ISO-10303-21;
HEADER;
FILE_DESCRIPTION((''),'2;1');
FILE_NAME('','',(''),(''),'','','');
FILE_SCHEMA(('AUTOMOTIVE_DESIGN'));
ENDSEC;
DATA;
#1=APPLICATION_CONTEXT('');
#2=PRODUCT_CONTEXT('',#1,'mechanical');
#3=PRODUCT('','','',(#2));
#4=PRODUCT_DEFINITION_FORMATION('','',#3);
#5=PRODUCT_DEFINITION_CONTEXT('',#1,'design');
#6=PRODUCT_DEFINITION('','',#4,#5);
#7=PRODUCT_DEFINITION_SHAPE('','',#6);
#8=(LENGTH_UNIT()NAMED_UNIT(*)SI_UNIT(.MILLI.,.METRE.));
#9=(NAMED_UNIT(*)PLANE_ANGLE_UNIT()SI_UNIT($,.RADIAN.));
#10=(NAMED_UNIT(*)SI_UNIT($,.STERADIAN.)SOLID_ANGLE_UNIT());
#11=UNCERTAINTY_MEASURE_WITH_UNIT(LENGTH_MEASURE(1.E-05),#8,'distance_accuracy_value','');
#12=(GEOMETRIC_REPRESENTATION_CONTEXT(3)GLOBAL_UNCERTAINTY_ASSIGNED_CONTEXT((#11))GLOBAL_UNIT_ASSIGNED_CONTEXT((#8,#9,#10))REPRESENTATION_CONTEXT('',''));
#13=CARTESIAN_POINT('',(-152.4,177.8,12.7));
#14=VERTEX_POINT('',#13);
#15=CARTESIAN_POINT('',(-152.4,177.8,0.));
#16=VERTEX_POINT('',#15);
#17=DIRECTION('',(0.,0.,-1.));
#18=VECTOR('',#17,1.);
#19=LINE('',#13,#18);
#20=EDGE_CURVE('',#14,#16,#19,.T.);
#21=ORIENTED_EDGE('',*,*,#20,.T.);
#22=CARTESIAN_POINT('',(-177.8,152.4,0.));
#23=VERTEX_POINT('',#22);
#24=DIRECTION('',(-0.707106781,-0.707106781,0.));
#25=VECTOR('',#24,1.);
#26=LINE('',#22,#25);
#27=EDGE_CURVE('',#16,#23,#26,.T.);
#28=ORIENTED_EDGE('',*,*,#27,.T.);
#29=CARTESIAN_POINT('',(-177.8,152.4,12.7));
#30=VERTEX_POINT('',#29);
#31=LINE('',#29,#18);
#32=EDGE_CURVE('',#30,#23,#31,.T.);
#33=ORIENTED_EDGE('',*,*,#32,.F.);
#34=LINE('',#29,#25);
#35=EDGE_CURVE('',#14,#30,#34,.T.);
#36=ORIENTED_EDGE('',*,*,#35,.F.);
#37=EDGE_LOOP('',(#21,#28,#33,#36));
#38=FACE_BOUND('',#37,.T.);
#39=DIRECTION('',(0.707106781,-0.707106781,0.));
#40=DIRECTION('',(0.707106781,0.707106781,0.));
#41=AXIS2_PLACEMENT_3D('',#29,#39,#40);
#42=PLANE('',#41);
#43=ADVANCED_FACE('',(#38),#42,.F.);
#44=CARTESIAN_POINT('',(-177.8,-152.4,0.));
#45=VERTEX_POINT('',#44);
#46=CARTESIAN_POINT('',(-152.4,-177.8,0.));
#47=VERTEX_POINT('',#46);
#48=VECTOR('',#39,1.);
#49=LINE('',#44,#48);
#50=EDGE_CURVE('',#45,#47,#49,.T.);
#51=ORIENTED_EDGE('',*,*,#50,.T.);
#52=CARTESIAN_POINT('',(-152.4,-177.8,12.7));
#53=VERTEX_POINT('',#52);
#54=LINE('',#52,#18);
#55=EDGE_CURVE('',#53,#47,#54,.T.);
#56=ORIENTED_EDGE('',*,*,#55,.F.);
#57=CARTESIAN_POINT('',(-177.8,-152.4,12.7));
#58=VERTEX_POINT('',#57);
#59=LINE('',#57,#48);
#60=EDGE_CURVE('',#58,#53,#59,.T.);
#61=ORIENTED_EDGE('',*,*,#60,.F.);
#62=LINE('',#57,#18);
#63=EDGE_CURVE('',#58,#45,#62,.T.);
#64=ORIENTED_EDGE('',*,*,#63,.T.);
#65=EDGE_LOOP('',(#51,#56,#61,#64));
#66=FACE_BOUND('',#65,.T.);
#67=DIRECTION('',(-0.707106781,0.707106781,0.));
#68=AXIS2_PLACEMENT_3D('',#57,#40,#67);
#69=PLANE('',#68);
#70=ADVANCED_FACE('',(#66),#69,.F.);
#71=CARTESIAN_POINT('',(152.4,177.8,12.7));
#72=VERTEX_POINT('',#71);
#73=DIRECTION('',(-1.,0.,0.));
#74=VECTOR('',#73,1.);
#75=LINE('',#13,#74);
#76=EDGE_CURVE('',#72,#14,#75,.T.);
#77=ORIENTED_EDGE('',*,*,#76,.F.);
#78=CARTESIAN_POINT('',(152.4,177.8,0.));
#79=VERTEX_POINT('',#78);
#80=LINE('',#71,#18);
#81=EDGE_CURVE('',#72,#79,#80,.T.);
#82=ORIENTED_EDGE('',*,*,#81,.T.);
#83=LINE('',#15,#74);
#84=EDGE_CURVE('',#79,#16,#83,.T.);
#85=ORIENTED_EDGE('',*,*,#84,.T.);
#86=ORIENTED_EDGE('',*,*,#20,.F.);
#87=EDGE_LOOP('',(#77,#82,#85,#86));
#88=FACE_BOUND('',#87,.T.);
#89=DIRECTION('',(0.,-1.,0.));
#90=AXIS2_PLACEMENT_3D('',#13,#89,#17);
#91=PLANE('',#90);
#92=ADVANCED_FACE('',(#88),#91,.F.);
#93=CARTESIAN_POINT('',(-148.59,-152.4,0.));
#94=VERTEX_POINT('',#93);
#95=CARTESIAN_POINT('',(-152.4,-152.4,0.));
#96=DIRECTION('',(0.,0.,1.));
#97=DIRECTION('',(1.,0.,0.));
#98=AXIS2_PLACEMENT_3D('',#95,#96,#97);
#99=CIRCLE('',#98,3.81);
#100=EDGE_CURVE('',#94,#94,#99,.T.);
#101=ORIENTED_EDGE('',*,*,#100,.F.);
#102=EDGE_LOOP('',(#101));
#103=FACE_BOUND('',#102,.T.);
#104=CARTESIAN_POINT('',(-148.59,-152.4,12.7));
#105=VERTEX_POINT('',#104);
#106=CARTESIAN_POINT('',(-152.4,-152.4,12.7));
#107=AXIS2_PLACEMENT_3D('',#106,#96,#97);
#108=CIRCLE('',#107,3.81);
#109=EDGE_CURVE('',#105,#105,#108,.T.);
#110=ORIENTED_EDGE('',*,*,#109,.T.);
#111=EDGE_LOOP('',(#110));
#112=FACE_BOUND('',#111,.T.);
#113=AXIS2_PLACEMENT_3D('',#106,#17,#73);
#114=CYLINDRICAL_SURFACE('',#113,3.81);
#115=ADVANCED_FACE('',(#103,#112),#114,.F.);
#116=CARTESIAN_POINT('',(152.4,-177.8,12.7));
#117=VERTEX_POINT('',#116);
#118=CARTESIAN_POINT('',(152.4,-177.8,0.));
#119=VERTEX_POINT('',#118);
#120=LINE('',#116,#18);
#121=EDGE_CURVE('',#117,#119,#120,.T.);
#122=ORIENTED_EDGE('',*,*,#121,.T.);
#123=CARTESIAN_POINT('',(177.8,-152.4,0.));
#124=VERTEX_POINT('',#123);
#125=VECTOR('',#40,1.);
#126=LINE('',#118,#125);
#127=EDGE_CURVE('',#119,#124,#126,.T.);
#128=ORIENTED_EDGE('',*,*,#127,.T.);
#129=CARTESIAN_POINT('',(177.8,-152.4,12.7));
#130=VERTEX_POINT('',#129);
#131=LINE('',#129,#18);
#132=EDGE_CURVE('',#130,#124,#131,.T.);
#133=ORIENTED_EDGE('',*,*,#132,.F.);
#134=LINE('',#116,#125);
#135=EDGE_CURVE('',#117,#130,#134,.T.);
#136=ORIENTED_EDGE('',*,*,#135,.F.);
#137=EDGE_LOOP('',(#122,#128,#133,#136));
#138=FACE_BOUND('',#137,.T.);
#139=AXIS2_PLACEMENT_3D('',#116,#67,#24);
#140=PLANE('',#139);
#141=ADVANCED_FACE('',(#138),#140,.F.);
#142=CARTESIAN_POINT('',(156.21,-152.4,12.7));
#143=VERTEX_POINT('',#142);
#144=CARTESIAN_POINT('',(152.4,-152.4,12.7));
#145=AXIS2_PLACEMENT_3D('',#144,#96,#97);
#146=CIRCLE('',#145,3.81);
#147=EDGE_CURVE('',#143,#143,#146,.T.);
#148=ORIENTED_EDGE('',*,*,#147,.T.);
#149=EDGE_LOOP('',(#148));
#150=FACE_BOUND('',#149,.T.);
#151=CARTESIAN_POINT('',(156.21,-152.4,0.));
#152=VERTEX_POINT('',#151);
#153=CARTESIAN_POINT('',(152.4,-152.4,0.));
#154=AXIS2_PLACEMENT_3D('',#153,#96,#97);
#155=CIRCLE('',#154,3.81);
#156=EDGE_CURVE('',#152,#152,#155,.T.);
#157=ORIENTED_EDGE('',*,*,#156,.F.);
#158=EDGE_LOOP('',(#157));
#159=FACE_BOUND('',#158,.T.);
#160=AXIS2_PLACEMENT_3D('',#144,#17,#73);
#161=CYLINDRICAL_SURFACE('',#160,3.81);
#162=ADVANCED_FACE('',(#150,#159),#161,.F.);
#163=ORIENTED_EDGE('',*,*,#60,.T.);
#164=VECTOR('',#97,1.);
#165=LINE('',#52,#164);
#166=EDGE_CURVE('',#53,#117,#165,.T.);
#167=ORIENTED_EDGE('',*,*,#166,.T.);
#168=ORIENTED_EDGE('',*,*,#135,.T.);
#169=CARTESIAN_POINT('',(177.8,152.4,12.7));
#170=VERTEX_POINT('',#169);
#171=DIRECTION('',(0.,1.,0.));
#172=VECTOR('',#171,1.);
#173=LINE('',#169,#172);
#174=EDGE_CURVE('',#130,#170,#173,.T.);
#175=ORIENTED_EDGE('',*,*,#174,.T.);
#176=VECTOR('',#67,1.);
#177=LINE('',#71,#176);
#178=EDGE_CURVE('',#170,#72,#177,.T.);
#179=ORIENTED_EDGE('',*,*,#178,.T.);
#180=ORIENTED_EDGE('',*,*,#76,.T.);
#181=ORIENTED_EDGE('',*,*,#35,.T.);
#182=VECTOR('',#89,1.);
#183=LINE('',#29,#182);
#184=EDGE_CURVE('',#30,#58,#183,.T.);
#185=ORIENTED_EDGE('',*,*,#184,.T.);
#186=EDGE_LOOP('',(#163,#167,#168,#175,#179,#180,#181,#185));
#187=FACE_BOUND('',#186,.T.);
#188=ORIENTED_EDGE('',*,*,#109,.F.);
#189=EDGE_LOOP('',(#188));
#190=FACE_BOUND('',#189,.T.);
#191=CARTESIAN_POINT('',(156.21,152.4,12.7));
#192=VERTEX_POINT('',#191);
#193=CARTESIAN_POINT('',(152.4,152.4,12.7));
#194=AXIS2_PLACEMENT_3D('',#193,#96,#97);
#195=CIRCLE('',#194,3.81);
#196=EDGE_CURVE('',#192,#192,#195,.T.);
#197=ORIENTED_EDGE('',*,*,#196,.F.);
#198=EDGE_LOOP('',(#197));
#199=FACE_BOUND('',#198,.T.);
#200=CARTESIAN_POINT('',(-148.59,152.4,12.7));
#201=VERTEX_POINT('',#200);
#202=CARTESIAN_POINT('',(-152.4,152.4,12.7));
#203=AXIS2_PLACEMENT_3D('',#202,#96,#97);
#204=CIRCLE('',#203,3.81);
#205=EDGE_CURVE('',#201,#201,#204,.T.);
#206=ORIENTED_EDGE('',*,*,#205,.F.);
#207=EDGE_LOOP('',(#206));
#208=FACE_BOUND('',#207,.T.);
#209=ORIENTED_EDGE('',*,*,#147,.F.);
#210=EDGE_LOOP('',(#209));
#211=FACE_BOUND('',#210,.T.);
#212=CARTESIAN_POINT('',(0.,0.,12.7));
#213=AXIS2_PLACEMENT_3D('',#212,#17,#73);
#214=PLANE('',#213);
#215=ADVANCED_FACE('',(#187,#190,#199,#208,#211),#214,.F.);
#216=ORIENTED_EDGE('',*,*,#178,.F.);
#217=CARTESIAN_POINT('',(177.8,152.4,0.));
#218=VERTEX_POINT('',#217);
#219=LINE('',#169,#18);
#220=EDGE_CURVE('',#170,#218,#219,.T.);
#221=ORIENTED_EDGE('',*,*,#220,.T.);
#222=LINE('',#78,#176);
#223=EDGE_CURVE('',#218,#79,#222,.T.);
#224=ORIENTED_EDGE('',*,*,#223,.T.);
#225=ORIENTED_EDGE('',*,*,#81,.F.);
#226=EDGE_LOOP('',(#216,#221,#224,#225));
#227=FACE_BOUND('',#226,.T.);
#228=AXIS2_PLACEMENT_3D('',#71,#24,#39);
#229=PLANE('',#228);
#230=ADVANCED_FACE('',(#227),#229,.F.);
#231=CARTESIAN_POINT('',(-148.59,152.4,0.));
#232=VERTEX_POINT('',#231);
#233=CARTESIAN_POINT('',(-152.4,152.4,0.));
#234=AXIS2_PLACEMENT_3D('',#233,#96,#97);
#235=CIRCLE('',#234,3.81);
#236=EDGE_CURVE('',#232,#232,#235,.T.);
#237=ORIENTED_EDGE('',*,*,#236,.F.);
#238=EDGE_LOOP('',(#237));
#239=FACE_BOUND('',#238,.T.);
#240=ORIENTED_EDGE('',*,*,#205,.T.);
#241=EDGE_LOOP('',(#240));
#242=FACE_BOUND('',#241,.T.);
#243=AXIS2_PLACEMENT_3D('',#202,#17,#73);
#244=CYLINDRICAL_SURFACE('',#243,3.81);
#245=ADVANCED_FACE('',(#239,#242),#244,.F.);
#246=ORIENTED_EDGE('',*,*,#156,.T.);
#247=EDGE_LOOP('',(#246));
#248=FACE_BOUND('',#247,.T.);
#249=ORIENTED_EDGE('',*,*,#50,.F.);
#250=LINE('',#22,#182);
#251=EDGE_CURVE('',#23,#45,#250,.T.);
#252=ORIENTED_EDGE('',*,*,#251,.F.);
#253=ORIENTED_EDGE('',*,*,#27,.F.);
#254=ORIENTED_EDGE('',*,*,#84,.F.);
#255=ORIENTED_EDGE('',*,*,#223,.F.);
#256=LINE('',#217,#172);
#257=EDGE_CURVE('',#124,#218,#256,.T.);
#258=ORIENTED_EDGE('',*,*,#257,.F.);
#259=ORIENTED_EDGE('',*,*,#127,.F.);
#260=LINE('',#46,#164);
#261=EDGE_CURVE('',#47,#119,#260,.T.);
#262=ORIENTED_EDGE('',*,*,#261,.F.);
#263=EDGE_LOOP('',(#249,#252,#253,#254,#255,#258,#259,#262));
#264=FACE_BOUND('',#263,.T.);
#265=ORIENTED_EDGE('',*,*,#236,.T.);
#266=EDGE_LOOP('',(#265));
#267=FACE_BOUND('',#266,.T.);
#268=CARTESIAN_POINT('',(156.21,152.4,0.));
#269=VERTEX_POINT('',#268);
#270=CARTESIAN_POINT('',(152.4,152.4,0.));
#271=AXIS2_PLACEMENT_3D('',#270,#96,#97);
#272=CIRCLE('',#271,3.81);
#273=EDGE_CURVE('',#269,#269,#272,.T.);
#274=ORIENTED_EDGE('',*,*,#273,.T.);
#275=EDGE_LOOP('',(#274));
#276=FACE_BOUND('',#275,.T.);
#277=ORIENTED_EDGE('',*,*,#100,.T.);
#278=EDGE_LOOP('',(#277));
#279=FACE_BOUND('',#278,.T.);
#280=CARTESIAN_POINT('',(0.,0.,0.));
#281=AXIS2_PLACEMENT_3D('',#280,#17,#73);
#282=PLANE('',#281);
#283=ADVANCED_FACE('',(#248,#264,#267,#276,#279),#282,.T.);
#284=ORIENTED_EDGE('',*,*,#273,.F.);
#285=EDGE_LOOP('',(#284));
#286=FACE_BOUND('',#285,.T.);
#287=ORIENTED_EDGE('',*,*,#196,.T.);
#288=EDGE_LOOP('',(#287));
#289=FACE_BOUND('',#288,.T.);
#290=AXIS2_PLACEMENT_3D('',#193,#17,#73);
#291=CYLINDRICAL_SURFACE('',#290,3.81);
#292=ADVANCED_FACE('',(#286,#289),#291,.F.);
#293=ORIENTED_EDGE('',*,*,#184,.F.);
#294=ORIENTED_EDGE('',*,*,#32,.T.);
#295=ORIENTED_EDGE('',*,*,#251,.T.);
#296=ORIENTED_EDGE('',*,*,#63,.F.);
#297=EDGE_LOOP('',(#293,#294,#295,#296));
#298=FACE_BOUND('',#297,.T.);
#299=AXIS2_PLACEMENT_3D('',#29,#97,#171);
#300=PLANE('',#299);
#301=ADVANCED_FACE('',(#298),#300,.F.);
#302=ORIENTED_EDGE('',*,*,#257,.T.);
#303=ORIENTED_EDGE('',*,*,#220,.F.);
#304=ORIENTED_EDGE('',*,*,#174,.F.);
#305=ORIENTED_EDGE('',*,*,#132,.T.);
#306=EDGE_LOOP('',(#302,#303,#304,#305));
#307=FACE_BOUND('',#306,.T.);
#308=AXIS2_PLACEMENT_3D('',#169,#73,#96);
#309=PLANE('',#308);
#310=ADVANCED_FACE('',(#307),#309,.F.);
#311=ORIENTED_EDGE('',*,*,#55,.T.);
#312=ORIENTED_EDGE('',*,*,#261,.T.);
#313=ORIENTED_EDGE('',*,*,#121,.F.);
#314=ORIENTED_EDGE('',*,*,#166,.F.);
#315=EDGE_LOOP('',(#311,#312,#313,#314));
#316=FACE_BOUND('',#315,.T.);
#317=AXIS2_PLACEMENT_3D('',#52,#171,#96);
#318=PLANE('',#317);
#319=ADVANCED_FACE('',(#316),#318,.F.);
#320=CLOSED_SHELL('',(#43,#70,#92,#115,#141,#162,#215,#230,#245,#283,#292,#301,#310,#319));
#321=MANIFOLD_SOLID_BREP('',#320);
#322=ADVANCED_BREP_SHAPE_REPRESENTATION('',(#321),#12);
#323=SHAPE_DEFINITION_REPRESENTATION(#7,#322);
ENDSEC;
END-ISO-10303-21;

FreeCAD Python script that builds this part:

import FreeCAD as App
import Part
import Sketcher
Q = App.Units.Quantity

doc = App.newDocument("Part")
body = doc.addObject("PartDesign::Body", "Body")

# Sketch on XY plane
sketch1 = doc.addObject("Sketcher::SketchObject", "Sketch")
body.addObject(sketch1)
sketch1.AttachmentSupport = (doc.XY_Plane, [""])
sketch1.MapMode = "FlatFace"
sketch1.addGeometry([
    Part.LineSegment(App.Vector(-152.4, 177.8, 0), App.Vector(-177.8, 152.4, 0)),  # 0
    Part.LineSegment(App.Vector(-177.8, 152.4, 0), App.Vector(-177.8, -152.4, 0)),  # 1
    Part.LineSegment(App.Vector(-177.8, -152.4, 0), App.Vector(-152.4, -177.8, 0)),  # 2
    Part.LineSegment(App.Vector(-152.4, -177.8, 0), App.Vector(152.4, -177.8, 0)),  # 3
    Part.LineSegment(App.Vector(152.4, -177.8, 0), App.Vector(177.8, -152.4, 0)),  # 4
    Part.LineSegment(App.Vector(177.8, -152.4, 0), App.Vector(177.8, 152.4, 0)),  # 5
    Part.LineSegment(App.Vector(177.8, 152.4, 0), App.Vector(152.4, 177.8, 0)),  # 6
    Part.LineSegment(App.Vector(152.4, 177.8, 0), App.Vector(-152.4, 177.8, 0)),  # 7
    Part.Circle(App.Vector(152.4, -152.4, 0), App.Vector(0, 0, 1), 3.8),  # 8
    Part.Circle(App.Vector(-152.4, -152.4, 0), App.Vector(0, 0, 1), 3.8),  # 9
    Part.Circle(App.Vector(152.4, 152.4, 0), App.Vector(0, 0, 1), 3.8),  # 10
    Part.Circle(App.Vector(-152.4, 152.4, 0), App.Vector(0, 0, 1), 3.8),  # 11
], False)
sketch1.addConstraint([
    Sketcher.Constraint("Coincident", 0, 2, 1, 1),
    Sketcher.Constraint("Coincident", 1, 2, 2, 1),
    Sketcher.Constraint("Coincident", 2, 2, 3, 1),
    Sketcher.Constraint("Coincident", 3, 2, 4, 1),
    Sketcher.Constraint("Coincident", 4, 2, 5, 1),
    Sketcher.Constraint("Coincident", 5, 2, 6, 1),
    Sketcher.Constraint("Coincident", 6, 2, 7, 1),
    Sketcher.Constraint("Coincident", 7, 2, 0, 1),
    Sketcher.Constraint("Vertical", 1),
    Sketcher.Constraint("Horizontal", 3),
    Sketcher.Constraint("Vertical", 5),
    Sketcher.Constraint("Horizontal", 7),
    Sketcher.Constraint("Equal", 8, 9),
    Sketcher.Constraint("Equal", 9, 10),
    Sketcher.Constraint("Equal", 10, 11),
    Sketcher.Constraint("Symmetric", 9, 3, 10, 3, -1, 1),
    Sketcher.Constraint("Symmetric", 8, 3, 11, 3, -1, 1),
    Sketcher.Constraint("Symmetric", 0, 2, 4, 2, -1, 1),
    Sketcher.Constraint("Symmetric", 2, 2, 6, 2, -1, 1),
    Sketcher.Constraint("Symmetric", 8, 3, 9, 3, -2),
    Sketcher.Constraint("Perpendicular", 0, 2),
    Sketcher.Constraint("Perpendicular", 2, 4),
    Sketcher.Constraint("Perpendicular", 4, 6),
    Sketcher.Constraint("Horizontal", 11, 3, 0, 2),
    Sketcher.Constraint("Horizontal", 9, 3, 1, 2),
    Sketcher.Constraint("Vertical", 11, 3, 2, 2),
    Sketcher.Constraint("Vertical", 10, 3, 3, 2),
    Sketcher.Constraint("Equal", 7, 1),
    Sketcher.Constraint("Diameter", 8, Q("0.3 in")),
    Sketcher.Constraint("DistanceX", 3, 1, 3, 2, Q("12 in")),
    Sketcher.Constraint("DistanceX", 0, 2, -1, 1, Q("7 in")),
])
pad1 = doc.addObject("PartDesign::Pad", "Pad")
body.addObject(pad1)
pad1.Profile = sketch1
pad1.Length = Q("0.5 in")

doc.recompute()
